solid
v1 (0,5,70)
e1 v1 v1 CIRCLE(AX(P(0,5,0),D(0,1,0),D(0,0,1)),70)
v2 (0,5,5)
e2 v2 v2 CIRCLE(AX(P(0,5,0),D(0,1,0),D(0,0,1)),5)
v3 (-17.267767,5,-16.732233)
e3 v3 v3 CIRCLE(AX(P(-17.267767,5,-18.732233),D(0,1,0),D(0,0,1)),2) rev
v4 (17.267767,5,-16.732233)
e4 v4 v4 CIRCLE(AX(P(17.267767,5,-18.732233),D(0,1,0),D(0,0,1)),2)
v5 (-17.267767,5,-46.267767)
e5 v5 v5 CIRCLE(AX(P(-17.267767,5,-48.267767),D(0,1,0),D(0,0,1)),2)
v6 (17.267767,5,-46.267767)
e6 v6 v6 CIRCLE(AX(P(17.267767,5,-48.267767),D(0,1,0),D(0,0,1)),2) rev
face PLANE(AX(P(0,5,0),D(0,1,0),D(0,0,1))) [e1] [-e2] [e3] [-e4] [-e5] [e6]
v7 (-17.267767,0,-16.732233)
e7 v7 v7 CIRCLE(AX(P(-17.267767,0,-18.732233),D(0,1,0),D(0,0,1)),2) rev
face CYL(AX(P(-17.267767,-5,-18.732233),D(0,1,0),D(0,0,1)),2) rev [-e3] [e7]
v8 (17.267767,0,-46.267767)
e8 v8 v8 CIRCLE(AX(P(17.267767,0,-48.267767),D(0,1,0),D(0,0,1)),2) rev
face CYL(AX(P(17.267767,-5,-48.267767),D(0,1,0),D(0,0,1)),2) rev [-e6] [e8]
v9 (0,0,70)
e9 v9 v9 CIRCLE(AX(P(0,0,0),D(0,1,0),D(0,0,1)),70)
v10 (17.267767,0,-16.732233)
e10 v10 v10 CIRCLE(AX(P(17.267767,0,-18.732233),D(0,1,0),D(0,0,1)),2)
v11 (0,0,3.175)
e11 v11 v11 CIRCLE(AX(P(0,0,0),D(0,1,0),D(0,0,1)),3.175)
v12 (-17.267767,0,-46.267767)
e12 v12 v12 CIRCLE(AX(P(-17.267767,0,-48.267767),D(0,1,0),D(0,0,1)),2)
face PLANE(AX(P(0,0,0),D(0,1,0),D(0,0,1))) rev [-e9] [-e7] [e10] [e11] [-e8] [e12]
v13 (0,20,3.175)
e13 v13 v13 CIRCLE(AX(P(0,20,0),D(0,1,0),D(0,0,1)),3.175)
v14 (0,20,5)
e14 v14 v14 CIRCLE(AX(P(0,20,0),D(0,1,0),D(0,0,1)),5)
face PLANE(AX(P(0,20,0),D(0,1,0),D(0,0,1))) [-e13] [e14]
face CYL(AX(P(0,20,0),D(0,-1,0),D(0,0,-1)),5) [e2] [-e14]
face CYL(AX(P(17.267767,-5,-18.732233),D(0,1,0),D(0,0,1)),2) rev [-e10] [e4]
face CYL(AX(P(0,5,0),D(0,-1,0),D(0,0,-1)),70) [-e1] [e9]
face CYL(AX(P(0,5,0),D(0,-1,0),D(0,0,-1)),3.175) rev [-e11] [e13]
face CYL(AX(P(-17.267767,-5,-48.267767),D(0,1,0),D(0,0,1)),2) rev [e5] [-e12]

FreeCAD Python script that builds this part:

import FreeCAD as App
import Part
import Sketcher
from FreeCAD import Vector
Q = App.Units.Quantity

doc = App.newDocument("Part")
body = doc.addObject("PartDesign::Body", "Body")

# Sketch on XZ plane
sketch1 = body.newObject("Sketcher::SketchObject", "Sketch")
sketch1.AttachmentSupport = (doc.getObject("XZ_Plane"), [""])
sketch1.MapMode = "FlatFace"
sketch1.addGeometry(Part.Circle(Vector(0, 0, 0), Vector(0, 0, 1), 70), False)
sketch1.addGeometry(Part.Circle(Vector(0, 0, 0), Vector(0, 0, 1), 3.2), False)
sketch1.addConstraint(Sketcher.Constraint("Coincident", 0, 3, -1, 1))
sketch1.addConstraint(Sketcher.Constraint("Coincident", 1, 3, -1, 1))
sketch1.addConstraint(Sketcher.Constraint("Diameter", 0, Q("140 mm")))
sketch1.addConstraint(Sketcher.Constraint("Diameter", 1, Q("6.35 mm")))
pad1 = body.newObject("PartDesign::Pad", "Pad")
pad1.Profile = sketch1
pad1.Length = 5
pad1.Reversed = True

# Sketch on XZ plane
sketch2 = body.newObject("Sketcher::SketchObject", "Sketch001")
sketch2.AttachmentSupport = (doc.getObject("XZ_Plane"), [""])
sketch2.MapMode = "FlatFace"
sketch2.AttachmentOffset = App.Placement(Vector(0, 0, -5), App.Rotation())
sketch2.addGeometry(Part.Circle(Vector(0, 0, 0), Vector(0, 0, 1), 5), False)
sketch2.addGeometry(Part.Circle(Vector(0, 0, 0), Vector(0, 0, 1), 3.2), False)
sketch2.addConstraint(Sketcher.Constraint("Coincident", 0, 3, -1, 1))
sketch2.addConstraint(Sketcher.Constraint("Coincident", 1, 3, -1, 1))
sketch2.addConstraint(Sketcher.Constraint("Diameter", 0, Q("10 mm")))
sketch2.addConstraint(Sketcher.Constraint("Diameter", 1, Q("6.35 mm")))
pad2 = body.newObject("PartDesign::Pad", "Pad001")
pad2.Profile = sketch2
pad2.Length = 15
pad2.Reversed = True

# Sketch on XZ plane
sketch3 = body.newObject("Sketcher::SketchObject", "Sketch002")
sketch3.AttachmentSupport = (doc.getObject("XZ_Plane"), [""])
sketch3.MapMode = "FlatFace"
sketch3.AttachmentOffset = App.Placement(Vector(0, 0, -5), App.Rotation())
sketch3.addGeometry(Part.Circle(Vector(-17.3, -48.3, 0), Vector(0, 0, 1), 2), False)
sketch3.addGeometry(Part.Circle(Vector(17.3, -48.3, 0), Vector(0, 0, 1), 2), False)
sketch3.addGeometry(Part.Circle(Vector(-17.3, -18.7, 0), Vector(0, 0, 1), 2), False)
sketch3.addGeometry(Part.Circle(Vector(17.3, -18.7, 0), Vector(0, 0, 1), 2), False)
sketch3.addConstraint(Sketcher.Constraint("Equal", 0, 1))
sketch3.addConstraint(Sketcher.Constraint("Equal", 1, 2))
sketch3.addConstraint(Sketcher.Constraint("Equal", 2, 3))
sketch3.addConstraint(Sketcher.Constraint("Symmetric", 0, 3, 1, 3, -2))
sketch3.addConstraint(Sketcher.Constraint("Symmetric", 2, 3, 3, 3, -2))
sketch3.addConstraint(Sketcher.Constraint("Vertical", 0, 3, 2, 3))
sketch3.addConstraint(Sketcher.Constraint("Diameter", 0, Q("4 mm")))
sketch3.addConstraint(Sketcher.Constraint("DistanceX", 0, 3, -1, 1, Q("17.267767 mm")))
sketch3.addConstraint(Sketcher.Constraint("DistanceY", 0, 3, -1, 1, Q("48.267767 mm")))
sketch3.addConstraint(Sketcher.Constraint("DistanceY", 2, 3, -1, 1, Q("18.732233 mm")))
pocket1 = body.newObject("PartDesign::Pocket", "Pocket")
pocket1.Profile = sketch3
pocket1.Length = 10
pocket1.Reversed = True

doc.recompute()
